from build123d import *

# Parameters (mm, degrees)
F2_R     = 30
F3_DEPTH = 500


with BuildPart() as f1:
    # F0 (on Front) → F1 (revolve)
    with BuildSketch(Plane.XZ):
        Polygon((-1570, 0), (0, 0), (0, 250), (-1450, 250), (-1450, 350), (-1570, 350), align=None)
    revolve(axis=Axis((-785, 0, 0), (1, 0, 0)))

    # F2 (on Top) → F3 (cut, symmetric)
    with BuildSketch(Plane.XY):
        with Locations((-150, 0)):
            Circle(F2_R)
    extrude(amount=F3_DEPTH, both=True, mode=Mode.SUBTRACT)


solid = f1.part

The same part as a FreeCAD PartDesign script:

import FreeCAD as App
import Part
import Sketcher
from FreeCAD import Vector


def add_polygon(sketch, points):
    """Adds a closed chain of lines whose ends are joined by coincident constraints."""
    first, n = sketch.GeometryCount, len(points)
    for a, b in zip(points, points[1:] + points[:1]):
        sketch.addGeometry(Part.LineSegment(App.Vector(*a, 0), App.Vector(*b, 0)), False)
    for i in range(n):
        sketch.addConstraint(Sketcher.Constraint("Coincident", first + i, 2, first + (i + 1) % n, 1))

doc = App.newDocument("Part")
body = doc.addObject("PartDesign::Body", "Body")

sketch1 = body.newObject("Sketcher::SketchObject", "Sketch")
sketch1.AttachmentSupport = (doc.getObject("XZ_Plane"), [""])
sketch1.MapMode = "FlatFace"
add_polygon(sketch1, [(-1570, 0), (0, 0), (0, 250), (-1450, 250), (-1450, 350), (-1570, 350)])
sketch1.addConstraint([
    Sketcher.Constraint("Horizontal", 0),
    Sketcher.Constraint("Vertical", 1),
    Sketcher.Constraint("Horizontal", 2),
    Sketcher.Constraint("Vertical", 3),
    Sketcher.Constraint("Horizontal", 4),
    Sketcher.Constraint("Vertical", 5),
    Sketcher.Constraint("Coincident", 0, 2, -1, 1),
    Sketcher.Constraint("DistanceX", 0, 1, 0, 2, 1570.0),
    Sketcher.Constraint("DistanceX", 2, 2, 2, 1, 1450.0),
    Sketcher.Constraint("DistanceY", 1, 1, 1, 2, 250.0),
    Sketcher.Constraint("DistanceY", 3, 1, 3, 2, 100.0),
])
revolution = body.newObject("PartDesign::Revolution", "Revolution")
revolution.Profile = sketch1
revolution.ReferenceAxis = (sketch1, ["H_Axis"])
revolution.Angle = 360

sketch2 = body.newObject("Sketcher::SketchObject", "Sketch001")
sketch2.AttachmentSupport = (doc.getObject("XY_Plane"), [""])
sketch2.MapMode = "FlatFace"
sketch2.addGeometry(Part.Circle(Vector(-150, 0, 0), Vector(0, 0, 1), 30), False)
sketch2.addConstraint([
    Sketcher.Constraint("PointOnObject", 0, 3, -1),
    Sketcher.Constraint("Diameter", 0, 60.0),
    Sketcher.Constraint("DistanceX", 0, 3, -1, 1, 150.0),
])
pocket1 = body.newObject("PartDesign::Pocket", "Pocket")
pocket1.Profile = sketch2
pocket1.Length = 1000
pocket1.Midplane = True

doc.recompute()
